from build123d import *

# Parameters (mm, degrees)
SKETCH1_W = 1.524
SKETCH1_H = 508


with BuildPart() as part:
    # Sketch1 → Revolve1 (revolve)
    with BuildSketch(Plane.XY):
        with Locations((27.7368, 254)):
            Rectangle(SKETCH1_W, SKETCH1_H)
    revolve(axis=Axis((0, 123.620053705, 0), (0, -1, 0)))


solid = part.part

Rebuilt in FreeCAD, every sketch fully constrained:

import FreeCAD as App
import Part
import Sketcher
Q = App.Units.Quantity


def add_polygon(sketch, points):
    """Adds a closed chain of lines whose ends are joined by coincident constraints."""
    first, n = sketch.GeometryCount, len(points)
    for a, b in zip(points, points[1:] + points[:1]):
        sketch.addGeometry(Part.LineSegment(App.Vector(*a, 0), App.Vector(*b, 0)), False)
    for i in range(n):
        sketch.addConstraint(Sketcher.Constraint("Coincident", first + i, 2, first + (i + 1) % n, 1))

doc = App.newDocument("Part")
body = doc.addObject("PartDesign::Body", "Body")

sketch1 = body.newObject("Sketcher::SketchObject", "Sketch")
sketch1.AttachmentSupport = (doc.getObject("XY_Plane"), [""])
sketch1.MapMode = "FlatFace"
add_polygon(sketch1, [(27, 508), (27, 0), (28.5, 0), (28.5, 508)])
sketch1.addConstraint([
    Sketcher.Constraint("Vertical", 0),
    Sketcher.Constraint("Horizontal", 1),
    Sketcher.Constraint("Vertical", 2),
    Sketcher.Constraint("Horizontal", 3),
    Sketcher.Constraint("PointOnObject", 0, 2, -1),
    Sketcher.Constraint("DistanceY", 0, 2, 0, 1, Q("20 in")),
    Sketcher.Constraint("DistanceX", 1, 1, 1, 2, Q("0.06 in")),
    Sketcher.Constraint("DistanceX", -1, 1, 0, 2, Q("1.062 in")),
])
revolution = body.newObject("PartDesign::Revolution", "Revolution")
revolution.Profile = sketch1
revolution.ReferenceAxis = (sketch1, ["V_Axis"])
revolution.Angle = 360

doc.recompute()
